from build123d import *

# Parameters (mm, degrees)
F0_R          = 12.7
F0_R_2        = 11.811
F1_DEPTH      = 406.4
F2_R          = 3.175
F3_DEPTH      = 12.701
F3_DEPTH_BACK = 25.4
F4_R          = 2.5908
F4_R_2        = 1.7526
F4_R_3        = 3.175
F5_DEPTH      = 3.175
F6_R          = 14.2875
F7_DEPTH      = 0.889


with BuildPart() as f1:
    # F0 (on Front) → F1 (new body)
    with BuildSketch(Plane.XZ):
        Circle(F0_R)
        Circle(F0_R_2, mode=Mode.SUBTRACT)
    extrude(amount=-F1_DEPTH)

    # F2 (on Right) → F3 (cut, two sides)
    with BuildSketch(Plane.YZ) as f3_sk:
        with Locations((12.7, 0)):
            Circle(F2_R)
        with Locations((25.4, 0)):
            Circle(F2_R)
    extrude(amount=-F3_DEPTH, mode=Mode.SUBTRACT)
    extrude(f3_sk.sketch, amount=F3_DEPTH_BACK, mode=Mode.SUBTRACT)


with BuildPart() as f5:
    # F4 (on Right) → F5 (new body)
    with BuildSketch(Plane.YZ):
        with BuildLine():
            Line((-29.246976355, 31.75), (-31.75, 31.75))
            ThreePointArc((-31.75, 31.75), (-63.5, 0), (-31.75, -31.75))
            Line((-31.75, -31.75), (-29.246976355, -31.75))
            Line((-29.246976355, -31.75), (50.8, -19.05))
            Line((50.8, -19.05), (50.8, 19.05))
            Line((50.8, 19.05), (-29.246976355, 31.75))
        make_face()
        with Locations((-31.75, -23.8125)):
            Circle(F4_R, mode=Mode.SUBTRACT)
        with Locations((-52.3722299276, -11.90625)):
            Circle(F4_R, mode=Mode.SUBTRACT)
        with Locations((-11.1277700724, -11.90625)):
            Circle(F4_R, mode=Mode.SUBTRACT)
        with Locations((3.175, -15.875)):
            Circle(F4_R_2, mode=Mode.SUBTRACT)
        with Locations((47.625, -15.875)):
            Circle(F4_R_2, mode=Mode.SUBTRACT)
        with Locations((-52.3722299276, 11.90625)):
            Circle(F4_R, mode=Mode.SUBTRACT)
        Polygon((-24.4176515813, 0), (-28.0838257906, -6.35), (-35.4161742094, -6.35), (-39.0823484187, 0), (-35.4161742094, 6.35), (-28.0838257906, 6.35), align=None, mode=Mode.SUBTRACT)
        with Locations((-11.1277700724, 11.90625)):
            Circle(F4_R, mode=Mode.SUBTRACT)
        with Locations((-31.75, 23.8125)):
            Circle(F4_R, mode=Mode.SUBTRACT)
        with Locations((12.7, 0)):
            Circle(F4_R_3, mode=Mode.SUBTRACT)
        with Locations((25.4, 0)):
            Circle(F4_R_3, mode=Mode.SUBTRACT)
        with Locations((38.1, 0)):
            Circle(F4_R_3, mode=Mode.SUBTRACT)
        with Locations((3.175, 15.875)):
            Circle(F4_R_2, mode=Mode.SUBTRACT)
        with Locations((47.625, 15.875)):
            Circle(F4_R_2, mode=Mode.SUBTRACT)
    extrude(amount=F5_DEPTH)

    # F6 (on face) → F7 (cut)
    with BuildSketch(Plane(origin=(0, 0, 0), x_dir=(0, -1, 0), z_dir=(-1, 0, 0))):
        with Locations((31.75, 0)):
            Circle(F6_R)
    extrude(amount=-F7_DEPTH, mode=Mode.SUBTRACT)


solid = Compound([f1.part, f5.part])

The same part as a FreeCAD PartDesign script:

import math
import FreeCAD as App
import Part
import Sketcher
Q = App.Units.Quantity


def add_polygon(sketch, points):
    """Adds a closed chain of lines whose ends are joined by coincident constraints."""
    first, n = sketch.GeometryCount, len(points)
    for a, b in zip(points, points[1:] + points[:1]):
        sketch.addGeometry(Part.LineSegment(App.Vector(*a, 0), App.Vector(*b, 0)), False)
    for i in range(n):
        sketch.addConstraint(Sketcher.Constraint("Coincident", first + i, 2, first + (i + 1) % n, 1))

doc = App.newDocument("Part")
body = doc.addObject("PartDesign::Body", "Body")

sketch1 = body.newObject("Sketcher::SketchObject", "Sketch")
sketch1.AttachmentSupport = (doc.getObject("XZ_Plane"), [""])
sketch1.MapMode = "FlatFace"
sketch1.addGeometry([
    Part.Circle(App.Vector(0, 0, 0), App.Vector(0, 0, 1), 13),
    Part.Circle(App.Vector(0, 0, 0), App.Vector(0, 0, 1), 12),
], False)
sketch1.addConstraint([
    Sketcher.Constraint("Coincident", 0, 3, -1, 1),
    Sketcher.Constraint("Coincident", 1, 3, -1, 1),
    Sketcher.Constraint("Diameter", 0, Q("1 in")),
    Sketcher.Constraint("Diameter", 1, Q("0.93 in")),
])
pad1 = body.newObject("PartDesign::Pad", "Pad")
pad1.Profile = sketch1
pad1.Length = Q("16 in")
pad1.Reversed = True

sketch2 = body.newObject("Sketcher::SketchObject", "Sketch001")
sketch2.AttachmentSupport = (doc.getObject("YZ_Plane"), [""])
sketch2.MapMode = "FlatFace"
sketch2.addGeometry([
    Part.Circle(App.Vector(12.7, 0, 0), App.Vector(0, 0, 1), 3.2),
    Part.Circle(App.Vector(25.4, 0, 0), App.Vector(0, 0, 1), 3.2),
], False)
sketch2.addConstraint([
    Sketcher.Constraint("Equal", 0, 1),
    Sketcher.Constraint("PointOnObject", 0, 3, -1),
    Sketcher.Constraint("PointOnObject", 1, 3, -1),
    Sketcher.Constraint("Diameter", 0, Q("0.25 in")),
    Sketcher.Constraint("DistanceX", -1, 1, 1, 3, Q("1 in")),
    Sketcher.Constraint("DistanceX", -1, 1, 0, 3, Q("0.5 in")),
])
pocket1 = body.newObject("PartDesign::Pocket", "Pocket")
pocket1.Profile = sketch2
pocket1.Type = "ThroughAll"
pocket1.Midplane = True
body2 = doc.addObject("PartDesign::Body", "Body001")

sketch3 = body2.newObject("Sketcher::SketchObject", "Sketch002")
sketch3.AttachmentSupport = (doc.getObject("YZ_Plane001"), [""])
sketch3.MapMode = "FlatFace"
sketch3.addGeometry(Part.LineSegment(App.Vector(-29.2, 31.8, 0), App.Vector(-31.8, 31.8, 0)), False)
sketch3.addGeometry(Part.ArcOfCircle(Part.Circle(App.Vector(-31.8, 0, 0), App.Vector(0, 0, 1), 31.8), math.radians(90), math.radians(270)), False)
sketch3.addGeometry(Part.LineSegment(App.Vector(-31.8, -31.8, 0), App.Vector(-29.2, -31.8, 0)), False)
sketch3.addGeometry(Part.LineSegment(App.Vector(-29.2, -31.8, 0), App.Vector(50.8, -19.1, 0)), False)
sketch3.addGeometry(Part.LineSegment(App.Vector(50.8, -19.1, 0), App.Vector(50.8, 19.1, 0)), False)
sketch3.addGeometry(Part.LineSegment(App.Vector(50.8, 19.1, 0), App.Vector(-29.2, 31.8, 0)), False)
sketch3.addGeometry(Part.Circle(App.Vector(-31.8, -23.8, 0), App.Vector(0, 0, 1), 2.6), False)
sketch3.addGeometry(Part.Circle(App.Vector(-52.4, -11.9, 0), App.Vector(0, 0, 1), 2.6), False)
sketch3.addGeometry(Part.Circle(App.Vector(-11.1, -11.9, 0), App.Vector(0, 0, 1), 2.6), False)
sketch3.addGeometry(Part.Circle(App.Vector(3.2, -15.9, 0), App.Vector(0, 0, 1), 1.8), False)
sketch3.addGeometry(Part.Circle(App.Vector(47.6, -15.9, 0), App.Vector(0, 0, 1), 1.8), False)
add_polygon(sketch3, [(-28.1, 6.3), (-24.4, 0), (-28.1, -6.3), (-35.4, -6.3), (-39.1, 0), (-35.4, 6.3)])
sketch3.addGeometry(Part.Circle(App.Vector(-52.4, 11.9, 0), App.Vector(0, 0, 1), 2.6), False)
sketch3.addGeometry(Part.Circle(App.Vector(-11.1, 11.9, 0), App.Vector(0, 0, 1), 2.6), False)
sketch3.addGeometry(Part.Circle(App.Vector(-31.8, 23.8, 0), App.Vector(0, 0, 1), 2.6), False)
sketch3.addGeometry(Part.Circle(App.Vector(12.7, 0, 0), App.Vector(0, 0, 1), 3.2), False)
sketch3.addGeometry(Part.Circle(App.Vector(25.4, 0, 0), App.Vector(0, 0, 1), 3.2), False)
sketch3.addGeometry(Part.Circle(App.Vector(38.1, 0, 0), App.Vector(0, 0, 1), 3.2), False)
sketch3.addGeometry(Part.Circle(App.Vector(3.2, 15.9, 0), App.Vector(0, 0, 1), 1.8), False)
sketch3.addGeometry(Part.Circle(App.Vector(47.6, 15.9, 0), App.Vector(0, 0, 1), 1.8), False)
sketch3.addConstraint([
    Sketcher.Constraint("Tangent", 0, 2, 1, 1),
    Sketcher.Constraint("Tangent", 1, 2, 2, 1),
    Sketcher.Constraint("Coincident", 2, 2, 3, 1),
    Sketcher.Constraint("Coincident", 3, 2, 4, 1),
    Sketcher.Constraint("Coincident", 4, 2, 5, 1),
    Sketcher.Constraint("Coincident", 5, 2, 0, 1),
    Sketcher.Constraint("Horizontal", 0),
    Sketcher.Constraint("Horizontal", 2),
    Sketcher.Constraint("Vertical", 4),
    Sketcher.Constraint("Horizontal", 13),
    Sketcher.Constraint("Horizontal", 16),
    Sketcher.Constraint("Equal", 6, 7),
    Sketcher.Constraint("Equal", 7, 8),
    Sketcher.Constraint("Equal", 9, 10),
    Sketcher.Constraint("Equal", 8, 17),
    Sketcher.Constraint("Equal", 17, 18),
    Sketcher.Constraint("Equal", 18, 19),
    Sketcher.Constraint("Equal", 20, 21),
    Sketcher.Constraint("Equal", 21, 22),
    Sketcher.Constraint("Equal", 10, 23),
    Sketcher.Constraint("Equal", 23, 24),
    Sketcher.Constraint("Symmetric", 7, 3, 17, 3, -1),
    Sketcher.Constraint("Symmetric", 8, 3, 18, 3, -1),
    Sketcher.Constraint("Symmetric", 6, 3, 19, 3, -1),
    Sketcher.Constraint("Symmetric", 9, 3, 23, 3, -1),
    Sketcher.Constraint("Symmetric", 10, 3, 24, 3, -1),
    Sketcher.Constraint("Symmetric", 2, 2, 5, 2, -1),
    Sketcher.Constraint("Symmetric", 13, 2, 15, 2, -1),
    Sketcher.Constraint("PointOnObject", 20, 3, -1),
    Sketcher.Constraint("PointOnObject", 21, 3, -1),
    Sketcher.Constraint("PointOnObject", 22, 3, -1),
    Sketcher.Constraint("PointOnObject", 11, 2, -1),
    Sketcher.Constraint("PointOnObject", 14, 2, -1),
    Sketcher.Constraint("Parallel", 11, 14),
    Sketcher.Constraint("Parallel", 12, 15),
    Sketcher.Constraint("Horizontal", 7, 3, 8, 3),
    Sketcher.Constraint("Horizontal", 9, 3, 10, 3),
    Sketcher.Constraint("Vertical", 1, 3, 6, 3),
    Sketcher.Constraint("Equal", 3, 5),
    Sketcher.Constraint("Diameter", 20, Q("0.25 in")),
    Sketcher.Constraint("Radius", 1, Q("1.25 in")),
    Sketcher.Constraint("Diameter", 6, Q("0.204 in")),
    Sketcher.Constraint("Diameter", 9, Q("0.138 in")),
    Sketcher.Constraint("DistanceY", 4, 1, 4, 2, Q("1.5 in")),
    Sketcher.Constraint("DistanceX", -1, 1, 21, 3, Q("1 in")),
    Sketcher.Constraint("DistanceX", -1, 1, 3, 2, Q("2 in")),
    Sketcher.Constraint("Angle", 11, Q("-60 deg")),
    Sketcher.Constraint("DistanceX", 20, 3, 22, 3, Q("1 in")),
    Sketcher.Constraint("DistanceX", -1, 1, 20, 3, Q("0.5 in")),
    Sketcher.Constraint("DistanceY", 13, 2, 15, 2, Q("0.5 in")),
    Sketcher.Constraint("DistanceX", 1, 3, -1, 1, Q("1.25 in")),
    Sketcher.Constraint("DistanceX", 9, 3, 10, 3, Q("1.75 in")),
    Sketcher.Constraint("DistanceY", 9, 3, 23, 3, Q("1.25 in")),
    Sketcher.Constraint("DistanceY", 6, 3, -1, 1, Q("0.9375 in")),
    Sketcher.Constraint("DistanceY", 7, 3, -1, 1, Q("0.46875 in")),
    Sketcher.Constraint("DistanceX", -1, 1, 9, 3, Q("0.125 in")),
    Sketcher.Constraint("DistanceX", 13, 2, 13, 1, Q("7.332348 mm")),
    Sketcher.Constraint("DistanceX", 0, 2, 0, 1, Q("2.503024 mm")),
    Sketcher.Constraint("DistanceX", 7, 3, -1, 1, Q("52.37223 mm")),
    Sketcher.Constraint("DistanceX", 8, 3, -1, 1, Q("11.12777 mm")),
    Sketcher.Constraint("DistanceX", 11, 2, -1, 1, Q("24.417652 mm")),
])
pad2 = body2.newObject("PartDesign::Pad", "Pad001")
pad2.Profile = sketch3
pad2.Length = Q("0.125 in")

sketch4 = body2.newObject("Sketcher::SketchObject", "Sketch003")
sketch4.AttachmentSupport = (doc.getObject("YZ_Plane001"), [""])
sketch4.MapMode = "FlatFace"
sketch4.addGeometry(Part.Circle(App.Vector(-32, 0, 0), App.Vector(0, 0, 1), 14), False)
sketch4.addConstraint([
    Sketcher.Constraint("PointOnObject", 0, 3, -1),
    Sketcher.Constraint("Diameter", 0, Q("1.125 in")),
    Sketcher.Constraint("DistanceX", 0, 3, -1, 1, Q("1.25 in")),
])
pocket2 = body2.newObject("PartDesign::Pocket", "Pocket001")
pocket2.Profile = sketch4
pocket2.Length = Q("0.035 in")
pocket2.Reversed = True

doc.recompute()
